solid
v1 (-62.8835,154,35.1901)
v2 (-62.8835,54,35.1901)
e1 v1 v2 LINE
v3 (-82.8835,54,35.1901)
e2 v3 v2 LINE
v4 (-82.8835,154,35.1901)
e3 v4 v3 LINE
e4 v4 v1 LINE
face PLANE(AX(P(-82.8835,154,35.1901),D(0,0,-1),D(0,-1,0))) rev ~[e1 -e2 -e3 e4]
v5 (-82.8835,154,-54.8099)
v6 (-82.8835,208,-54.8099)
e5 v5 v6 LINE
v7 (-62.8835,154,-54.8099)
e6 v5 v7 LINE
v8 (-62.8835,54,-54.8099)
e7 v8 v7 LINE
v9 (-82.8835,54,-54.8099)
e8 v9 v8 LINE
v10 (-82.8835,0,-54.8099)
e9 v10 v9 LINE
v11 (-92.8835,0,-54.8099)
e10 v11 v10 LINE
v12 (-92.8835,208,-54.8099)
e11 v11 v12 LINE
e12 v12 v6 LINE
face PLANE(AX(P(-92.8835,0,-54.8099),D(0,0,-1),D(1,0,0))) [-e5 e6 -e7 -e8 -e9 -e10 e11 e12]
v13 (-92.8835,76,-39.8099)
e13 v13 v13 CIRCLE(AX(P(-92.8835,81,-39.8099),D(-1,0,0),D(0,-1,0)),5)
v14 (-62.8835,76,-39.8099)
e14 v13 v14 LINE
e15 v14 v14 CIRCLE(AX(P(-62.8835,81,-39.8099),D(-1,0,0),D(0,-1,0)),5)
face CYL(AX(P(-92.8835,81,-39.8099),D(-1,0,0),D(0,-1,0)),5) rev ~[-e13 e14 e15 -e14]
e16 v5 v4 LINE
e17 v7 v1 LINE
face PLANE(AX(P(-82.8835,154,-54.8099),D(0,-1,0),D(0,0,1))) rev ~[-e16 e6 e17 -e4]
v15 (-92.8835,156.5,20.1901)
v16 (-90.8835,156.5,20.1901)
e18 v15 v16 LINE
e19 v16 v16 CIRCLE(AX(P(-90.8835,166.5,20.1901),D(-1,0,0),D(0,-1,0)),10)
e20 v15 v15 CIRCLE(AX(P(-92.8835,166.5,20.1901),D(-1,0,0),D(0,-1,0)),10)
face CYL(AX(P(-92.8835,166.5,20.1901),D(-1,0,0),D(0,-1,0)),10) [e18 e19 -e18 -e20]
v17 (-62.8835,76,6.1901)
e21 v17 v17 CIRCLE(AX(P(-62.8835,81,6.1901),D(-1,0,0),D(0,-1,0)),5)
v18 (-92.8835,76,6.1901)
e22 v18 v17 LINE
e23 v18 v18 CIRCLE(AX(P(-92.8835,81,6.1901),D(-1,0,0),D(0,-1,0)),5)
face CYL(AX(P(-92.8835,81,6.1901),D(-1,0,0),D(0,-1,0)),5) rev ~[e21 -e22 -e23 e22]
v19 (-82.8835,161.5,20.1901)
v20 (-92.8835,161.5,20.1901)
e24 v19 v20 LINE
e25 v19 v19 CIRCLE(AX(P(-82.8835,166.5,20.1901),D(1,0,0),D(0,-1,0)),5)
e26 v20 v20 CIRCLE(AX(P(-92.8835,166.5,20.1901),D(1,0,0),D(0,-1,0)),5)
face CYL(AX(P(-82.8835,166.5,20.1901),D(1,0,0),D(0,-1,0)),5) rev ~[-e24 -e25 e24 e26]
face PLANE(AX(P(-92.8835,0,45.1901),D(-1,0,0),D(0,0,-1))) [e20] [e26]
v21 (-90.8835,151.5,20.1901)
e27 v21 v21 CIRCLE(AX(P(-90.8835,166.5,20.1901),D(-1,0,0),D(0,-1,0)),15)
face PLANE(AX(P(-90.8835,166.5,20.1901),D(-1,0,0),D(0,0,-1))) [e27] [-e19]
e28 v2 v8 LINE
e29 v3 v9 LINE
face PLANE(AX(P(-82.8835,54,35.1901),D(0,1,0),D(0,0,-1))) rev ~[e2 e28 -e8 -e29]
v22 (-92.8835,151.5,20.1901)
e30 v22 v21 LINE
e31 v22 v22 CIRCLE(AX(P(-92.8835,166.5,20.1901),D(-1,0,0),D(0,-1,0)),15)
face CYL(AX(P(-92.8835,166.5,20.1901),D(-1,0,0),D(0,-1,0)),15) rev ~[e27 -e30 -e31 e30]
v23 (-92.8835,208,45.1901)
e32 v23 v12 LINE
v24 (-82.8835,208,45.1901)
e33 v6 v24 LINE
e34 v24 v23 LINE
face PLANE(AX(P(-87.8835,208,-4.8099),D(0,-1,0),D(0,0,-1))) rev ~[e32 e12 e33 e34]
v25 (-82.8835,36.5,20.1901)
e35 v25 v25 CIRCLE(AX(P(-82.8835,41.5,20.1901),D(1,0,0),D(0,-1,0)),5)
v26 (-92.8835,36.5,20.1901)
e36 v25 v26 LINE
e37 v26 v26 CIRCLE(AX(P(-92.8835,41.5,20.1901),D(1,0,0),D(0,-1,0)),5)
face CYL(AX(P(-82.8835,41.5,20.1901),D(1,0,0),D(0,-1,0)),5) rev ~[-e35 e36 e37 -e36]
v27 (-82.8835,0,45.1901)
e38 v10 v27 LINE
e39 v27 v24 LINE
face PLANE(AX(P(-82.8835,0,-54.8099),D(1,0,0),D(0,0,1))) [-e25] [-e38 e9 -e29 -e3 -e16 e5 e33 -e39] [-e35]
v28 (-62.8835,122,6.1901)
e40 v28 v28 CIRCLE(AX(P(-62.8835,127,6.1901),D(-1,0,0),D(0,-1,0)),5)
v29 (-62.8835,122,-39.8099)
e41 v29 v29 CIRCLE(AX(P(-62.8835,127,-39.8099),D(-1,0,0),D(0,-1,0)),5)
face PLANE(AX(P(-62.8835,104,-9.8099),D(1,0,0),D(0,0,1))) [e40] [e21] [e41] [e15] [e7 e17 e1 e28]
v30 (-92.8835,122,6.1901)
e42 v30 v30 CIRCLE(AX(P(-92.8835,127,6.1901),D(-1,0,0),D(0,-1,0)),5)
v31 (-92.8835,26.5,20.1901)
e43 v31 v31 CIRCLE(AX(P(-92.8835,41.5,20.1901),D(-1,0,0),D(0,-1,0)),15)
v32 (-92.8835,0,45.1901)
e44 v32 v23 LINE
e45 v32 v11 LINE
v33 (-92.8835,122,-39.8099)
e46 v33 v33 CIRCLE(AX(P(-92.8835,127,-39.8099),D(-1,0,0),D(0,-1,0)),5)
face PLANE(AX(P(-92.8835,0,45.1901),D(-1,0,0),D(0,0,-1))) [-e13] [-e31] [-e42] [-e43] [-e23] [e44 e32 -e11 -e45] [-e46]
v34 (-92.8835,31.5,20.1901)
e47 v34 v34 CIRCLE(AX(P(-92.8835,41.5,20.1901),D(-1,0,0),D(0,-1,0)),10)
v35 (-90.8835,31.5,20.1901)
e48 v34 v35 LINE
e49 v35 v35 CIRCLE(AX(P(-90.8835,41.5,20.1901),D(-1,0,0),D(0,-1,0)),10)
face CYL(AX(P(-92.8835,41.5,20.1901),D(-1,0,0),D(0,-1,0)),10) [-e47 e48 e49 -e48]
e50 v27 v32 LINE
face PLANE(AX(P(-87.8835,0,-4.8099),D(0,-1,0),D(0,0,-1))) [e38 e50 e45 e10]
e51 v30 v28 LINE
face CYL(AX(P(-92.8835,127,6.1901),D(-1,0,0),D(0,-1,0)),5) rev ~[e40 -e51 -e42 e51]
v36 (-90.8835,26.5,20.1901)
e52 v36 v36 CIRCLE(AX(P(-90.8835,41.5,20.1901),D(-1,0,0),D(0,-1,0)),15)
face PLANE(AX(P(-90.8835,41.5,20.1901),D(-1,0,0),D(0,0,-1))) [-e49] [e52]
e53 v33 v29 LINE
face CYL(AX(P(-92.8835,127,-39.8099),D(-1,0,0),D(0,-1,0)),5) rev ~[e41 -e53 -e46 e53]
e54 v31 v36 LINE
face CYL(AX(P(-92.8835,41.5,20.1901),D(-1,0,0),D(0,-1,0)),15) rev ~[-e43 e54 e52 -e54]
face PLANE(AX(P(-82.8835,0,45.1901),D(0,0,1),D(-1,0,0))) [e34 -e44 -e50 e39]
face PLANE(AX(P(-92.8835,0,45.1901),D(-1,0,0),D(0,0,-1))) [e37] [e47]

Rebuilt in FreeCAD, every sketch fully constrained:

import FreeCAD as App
import Part
import Sketcher
Q = App.Units.Quantity


def add_polygon(sketch, points):
    """Adds a closed chain of lines whose ends are joined by coincident constraints."""
    first, n = sketch.GeometryCount, len(points)
    for a, b in zip(points, points[1:] + points[:1]):
        sketch.addGeometry(Part.LineSegment(App.Vector(*a, 0), App.Vector(*b, 0)), False)
    for i in range(n):
        sketch.addConstraint(Sketcher.Constraint("Coincident", first + i, 2, first + (i + 1) % n, 1))

doc = App.newDocument("Part")
body = doc.addObject("PartDesign::Body", "Body")

# Sketch on XZ plane
sketch1 = body.newObject("Sketcher::SketchObject", "Sketch")
sketch1.AttachmentSupport = (doc.getObject("XZ_Plane"), [""])
sketch1.MapMode = "FlatFace"
add_polygon(sketch1, [(-93, 45), (-93, -55), (-83, -55), (-83, 45)])  # lines 0-3
sketch1.addConstraint(Sketcher.Constraint("Vertical", 0))
sketch1.addConstraint(Sketcher.Constraint("Horizontal", 1))
sketch1.addConstraint(Sketcher.Constraint("Vertical", 2))
sketch1.addConstraint(Sketcher.Constraint("Horizontal", 3))
sketch1.addConstraint(Sketcher.Constraint("DistanceX", 1, 1, 1, 2, Q("10 mm")))
sketch1.addConstraint(Sketcher.Constraint("DistanceY", 0, 2, 0, 1, Q("100 mm")))
sketch1.addConstraint(Sketcher.Constraint("DistanceX", 0, 2, -1, 1, Q("92.8835 mm")))
sketch1.addConstraint(Sketcher.Constraint("DistanceY", 0, 2, -1, 1, Q("54.81 mm")))
pad1 = body.newObject("PartDesign::Pad", "Pad")
pad1.Profile = sketch1
pad1.Length = 208
pad1.Reversed = True

# Sketch on YZ plane
sketch2 = body.newObject("Sketcher::SketchObject", "Sketch001")
sketch2.AttachmentSupport = (doc.getObject("YZ_Plane"), [""])
sketch2.MapMode = "FlatFace"
sketch2.AttachmentOffset = App.Placement(App.Vector(0, 0, -82.8835), App.Rotation())
add_polygon(sketch2, [(154, -55), (154, 35), (54, 35), (54, -55)])  # lines 0-3
sketch2.addConstraint(Sketcher.Constraint("Vertical", 0))
sketch2.addConstraint(Sketcher.Constraint("Horizontal", 1))
sketch2.addConstraint(Sketcher.Constraint("Vertical", 2))
sketch2.addConstraint(Sketcher.Constraint("Horizontal", 3))
sketch2.addConstraint(Sketcher.Constraint("DistanceX", 1, 2, 1, 1, Q("100 mm")))
sketch2.addConstraint(Sketcher.Constraint("DistanceY", 0, 1, 0, 2, Q("90 mm")))
sketch2.addConstraint(Sketcher.Constraint("DistanceX", -1, 1, 0, 2, Q("154 mm")))
sketch2.addConstraint(Sketcher.Constraint("DistanceY", -1, 1, 0, 2, Q("35.19 mm")))
pad2 = body.newObject("PartDesign::Pad", "Pad001")
pad2.Profile = sketch2
pad2.Length = 20

# Sketch on YZ plane
sketch3 = body.newObject("Sketcher::SketchObject", "Sketch002")
sketch3.AttachmentSupport = (doc.getObject("YZ_Plane"), [""])
sketch3.MapMode = "FlatFace"
sketch3.AttachmentOffset = App.Placement(App.Vector(0, 0, -82.8835), App.Rotation())
sketch3.addGeometry(Part.Circle(App.Vector(42, 20, 0), App.Vector(0, 0, 1), 5), False)
sketch3.addGeometry(Part.Circle(App.Vector(166, 20, 0), App.Vector(0, 0, 1), 5), False)
sketch3.addConstraint(Sketcher.Constraint("Equal", 0, 1))
sketch3.addConstraint(Sketcher.Constraint("Horizontal", 0, 3, 1, 3))
sketch3.addConstraint(Sketcher.Constraint("Diameter", 0, Q("10 mm")))
sketch3.addConstraint(Sketcher.Constraint("DistanceX", 0, 3, 1, 3, Q("125 mm")))
sketch3.addConstraint(Sketcher.Constraint("DistanceX", -1, 1, 0, 3, Q("41.5 mm")))
sketch3.addConstraint(Sketcher.Constraint("DistanceY", -1, 1, 0, 3, Q("20.19 mm")))
pocket1 = body.newObject("PartDesign::Pocket", "Pocket")
pocket1.Profile = sketch3
pocket1.Type = "ThroughAll"

# Sketch on YZ plane
sketch4 = body.newObject("Sketcher::SketchObject", "Sketch003")
sketch4.AttachmentSupport = (doc.getObject("YZ_Plane"), [""])
sketch4.MapMode = "FlatFace"
sketch4.AttachmentOffset = App.Placement(App.Vector(0, 0, -92.8835), App.Rotation())
sketch4.addGeometry(Part.Circle(App.Vector(127, -39.8, 0), App.Vector(0, 0, 1), 3), False)
sketch4.addGeometry(Part.Circle(App.Vector(127, 6.2, 0), App.Vector(0, 0, 1), 3), False)
sketch4.addGeometry(Part.Circle(App.Vector(81, 6.2, 0), App.Vector(0, 0, 1), 3), False)
sketch4.addGeometry(Part.Circle(App.Vector(81, -39.8, 0), App.Vector(0, 0, 1), 3), False)
sketch4.addConstraint(Sketcher.Constraint("Equal", 0, 1))
sketch4.addConstraint(Sketcher.Constraint("Equal", 1, 2))
sketch4.addConstraint(Sketcher.Constraint("Equal", 2, 3))
sketch4.addConstraint(Sketcher.Constraint("Horizontal", 1, 3, 2, 3))
sketch4.addConstraint(Sketcher.Constraint("Horizontal", 0, 3, 3, 3))
sketch4.addConstraint(Sketcher.Constraint("Vertical", 0, 3, 1, 3))
sketch4.addConstraint(Sketcher.Constraint("Vertical", 2, 3, 3, 3))
sketch4.addConstraint(Sketcher.Constraint("Diameter", 0, Q("6 mm")))
sketch4.addConstraint(Sketcher.Constraint("DistanceX", -1, 1, 0, 3, Q("127 mm")))
sketch4.addConstraint(Sketcher.Constraint("DistanceX", -1, 1, 2, 3, Q("81 mm")))
sketch4.addConstraint(Sketcher.Constraint("DistanceY", 0, 3, 1, 3, Q("46 mm")))
sketch4.addConstraint(Sketcher.Constraint("DistanceY", 0, 3, -1, 1, Q("39.81 mm")))
pocket2 = body.newObject("PartDesign::Pocket", "Pocket001")
pocket2.Profile = sketch4
pocket2.Type = "ThroughAll"
pocket2.Reversed = True

# Sketch on YZ plane
sketch5 = body.newObject("Sketcher::SketchObject", "Sketch004")
sketch5.AttachmentSupport = (doc.getObject("YZ_Plane"), [""])
sketch5.MapMode = "FlatFace"
sketch5.AttachmentOffset = App.Placement(App.Vector(0, 0, -92.8835), App.Rotation())
sketch5.addGeometry(Part.Circle(App.Vector(127, -40, 0), App.Vector(0, 0, 1), 5), False)
sketch5.addGeometry(Part.Circle(App.Vector(81, -40, 0), App.Vector(0, 0, 1), 5), False)
sketch5.addGeometry(Part.Circle(App.Vector(81, 6, 0), App.Vector(0, 0, 1), 5), False)
sketch5.addGeometry(Part.Circle(App.Vector(127, 6, 0), App.Vector(0, 0, 1), 5), False)
sketch5.addConstraint(Sketcher.Constraint("Equal", 0, 1))
sketch5.addConstraint(Sketcher.Constraint("Equal", 1, 2))
sketch5.addConstraint(Sketcher.Constraint("Equal", 2, 3))
sketch5.addConstraint(Sketcher.Constraint("Horizontal", 0, 3, 1, 3))
sketch5.addConstraint(Sketcher.Constraint("Horizontal", 2, 3, 3, 3))
sketch5.addConstraint(Sketcher.Constraint("Vertical", 1, 3, 2, 3))
sketch5.addConstraint(Sketcher.Constraint("Vertical", 0, 3, 3, 3))
sketch5.addConstraint(Sketcher.Constraint("Diameter", 0, Q("10 mm")))
sketch5.addConstraint(Sketcher.Constraint("DistanceX", -1, 1, 0, 3, Q("127 mm")))
sketch5.addConstraint(Sketcher.Constraint("DistanceX", -1, 1, 1, 3, Q("81 mm")))
sketch5.addConstraint(Sketcher.Constraint("DistanceY", 1, 3, 2, 3, Q("46 mm")))
sketch5.addConstraint(Sketcher.Constraint("DistanceY", 0, 3, -1, 1, Q("39.81 mm")))
pocket3 = body.newObject("PartDesign::Pocket", "Pocket002")
pocket3.Profile = sketch5
pocket3.Length = 40
pocket3.Reversed = True

# Sketch on YZ plane
sketch6 = body.newObject("Sketcher::SketchObject", "Sketch005")
sketch6.AttachmentSupport = (doc.getObject("YZ_Plane"), [""])
sketch6.MapMode = "FlatFace"
sketch6.AttachmentOffset = App.Placement(App.Vector(0, 0, -92.8835), App.Rotation())
sketch6.addGeometry(Part.Circle(App.Vector(42, 20, 0), App.Vector(0, 0, 1), 15), False)
sketch6.addGeometry(Part.Circle(App.Vector(42, 20, 0), App.Vector(0, 0, 1), 10), False)
sketch6.addGeometry(Part.Circle(App.Vector(166, 20, 0), App.Vector(0, 0, 1), 15), False)
sketch6.addGeometry(Part.Circle(App.Vector(166, 20, 0), App.Vector(0, 0, 1), 10), False)
sketch6.addConstraint(Sketcher.Constraint("Coincident", 1, 3, 0, 3))
sketch6.addConstraint(Sketcher.Constraint("Coincident", 3, 3, 2, 3))
sketch6.addConstraint(Sketcher.Constraint("Equal", 0, 2))
sketch6.addConstraint(Sketcher.Constraint("Equal", 1, 3))
sketch6.addConstraint(Sketcher.Constraint("Horizontal", 1, 3, 2, 3))
sketch6.addConstraint(Sketcher.Constraint("Diameter", 0, Q("30 mm")))
sketch6.addConstraint(Sketcher.Constraint("Diameter", 1, Q("20 mm")))
sketch6.addConstraint(Sketcher.Constraint("DistanceX", 0, 3, 2, 3, Q("125 mm")))
sketch6.addConstraint(Sketcher.Constraint("DistanceX", -1, 1, 0, 3, Q("41.5 mm")))
sketch6.addConstraint(Sketcher.Constraint("DistanceY", -1, 1, 0, 3, Q("20.19 mm")))
pocket4 = body.newObject("PartDesign::Pocket", "Pocket003")
pocket4.Profile = sketch6
pocket4.Length = 2
pocket4.Reversed = True

doc.recompute()
